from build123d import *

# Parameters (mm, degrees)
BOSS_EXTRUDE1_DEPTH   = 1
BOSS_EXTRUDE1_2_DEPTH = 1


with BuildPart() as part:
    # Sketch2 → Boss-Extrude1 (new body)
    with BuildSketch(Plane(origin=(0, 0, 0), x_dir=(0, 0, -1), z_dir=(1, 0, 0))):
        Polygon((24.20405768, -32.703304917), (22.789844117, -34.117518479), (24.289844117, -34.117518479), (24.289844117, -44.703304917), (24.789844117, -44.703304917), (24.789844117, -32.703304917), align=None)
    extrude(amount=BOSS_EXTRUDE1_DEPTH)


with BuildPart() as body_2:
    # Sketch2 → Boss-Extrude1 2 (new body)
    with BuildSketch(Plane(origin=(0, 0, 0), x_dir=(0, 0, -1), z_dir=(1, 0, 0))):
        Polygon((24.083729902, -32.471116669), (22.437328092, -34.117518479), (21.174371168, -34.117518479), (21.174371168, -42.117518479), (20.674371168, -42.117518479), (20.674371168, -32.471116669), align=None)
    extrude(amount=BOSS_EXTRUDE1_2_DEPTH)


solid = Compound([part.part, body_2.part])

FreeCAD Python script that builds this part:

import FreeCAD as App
import Part
import Sketcher

V = App.Vector
Q = App.Units.Quantity

doc = App.newDocument("Part")
body = doc.addObject("PartDesign::Body", "Body")

# Sketch on YZ plane
sketch1 = doc.addObject("Sketcher::SketchObject", "Sketch")
body.addObject(sketch1)
sketch1.AttachmentSupport = (doc.YZ_Plane, [""])
sketch1.MapMode = "FlatFace"
sketch1.addGeometry([
    Part.LineSegment(V(-32.7, -24.2, 0), V(-34.1, -22.8, 0)),  # 0
    Part.LineSegment(V(-34.1, -22.8, 0), V(-34.1, -24.3, 0)),  # 1
    Part.LineSegment(V(-34.1, -24.3, 0), V(-44.7, -24.3, 0)),  # 2
    Part.LineSegment(V(-44.7, -24.3, 0), V(-44.7, -24.8, 0)),  # 3
    Part.LineSegment(V(-44.7, -24.8, 0), V(-32.7, -24.8, 0)),  # 4
    Part.LineSegment(V(-32.7, -24.8, 0), V(-32.7, -24.2, 0)),  # 5
], False)
sketch1.addConstraint([
    Sketcher.Constraint("Coincident", 0, 2, 1, 1),
    Sketcher.Constraint("Coincident", 1, 2, 2, 1),
    Sketcher.Constraint("Coincident", 2, 2, 3, 1),
    Sketcher.Constraint("Coincident", 3, 2, 4, 1),
    Sketcher.Constraint("Coincident", 4, 2, 5, 1),
    Sketcher.Constraint("Coincident", 5, 2, 0, 1),
    Sketcher.Constraint("Vertical", 1),
    Sketcher.Constraint("Horizontal", 2),
    Sketcher.Constraint("Vertical", 3),
    Sketcher.Constraint("Horizontal", 4),
    Sketcher.Constraint("Vertical", 5),
    Sketcher.Constraint("DistanceX", 4, 1, 4, 2, 12.0),
    Sketcher.Constraint("Angle", 0, Q("135 deg")),
    Sketcher.Constraint("Distance", 0, 2.0),
    Sketcher.Constraint("DistanceY", 1, 2, 1, 1, 1.5),
    Sketcher.Constraint("DistanceY", 3, 2, 3, 1, 0.5),
    Sketcher.Constraint("DistanceX", 0, 2, -1, 1, 34.117518),
    Sketcher.Constraint("DistanceY", 0, 2, -1, 1, 22.789844),
])
pad1 = doc.addObject("PartDesign::Pad", "Pad")
body.addObject(pad1)
pad1.Profile = sketch1
pad1.Length = 1
body2 = doc.addObject("PartDesign::Body", "Body001")

# Sketch on YZ plane
sketch2 = doc.addObject("Sketcher::SketchObject", "Sketch001")
body2.addObject(sketch2)
sketch2.AttachmentSupport = (doc.getObject("YZ_Plane001"), [""])
sketch2.MapMode = "FlatFace"
sketch2.addGeometry([
    Part.LineSegment(V(-34.1, -22.4, 0), V(-32.5, -24.1, 0)),  # 0
    Part.LineSegment(V(-32.5, -24.1, 0), V(-32.5, -20.7, 0)),  # 1
    Part.LineSegment(V(-32.5, -20.7, 0), V(-42.1, -20.7, 0)),  # 2
    Part.LineSegment(V(-42.1, -20.7, 0), V(-42.1, -21.2, 0)),  # 3
    Part.LineSegment(V(-42.1, -21.2, 0), V(-34.1, -21.2, 0)),  # 4
    Part.LineSegment(V(-34.1, -21.2, 0), V(-34.1, -22.4, 0)),  # 5
], False)
sketch2.addConstraint([
    Sketcher.Constraint("Coincident", 0, 2, 1, 1),
    Sketcher.Constraint("Coincident", 1, 2, 2, 1),
    Sketcher.Constraint("Coincident", 2, 2, 3, 1),
    Sketcher.Constraint("Coincident", 3, 2, 4, 1),
    Sketcher.Constraint("Coincident", 4, 2, 5, 1),
    Sketcher.Constraint("Coincident", 5, 2, 0, 1),
    Sketcher.Constraint("Vertical", 1),
    Sketcher.Constraint("Horizontal", 2),
    Sketcher.Constraint("Vertical", 3),
    Sketcher.Constraint("Horizontal", 4),
    Sketcher.Constraint("Vertical", 5),
    Sketcher.Constraint("DistanceX", 4, 1, 4, 2, 8.0),
    Sketcher.Constraint("Angle", 0, Q("-45 deg")),
    Sketcher.Constraint("DistanceY", 3, 2, 3, 1, 0.5),
    Sketcher.Constraint("DistanceX", 2, 2, 2, 1, 9.646402),
    Sketcher.Constraint("DistanceY", 1, 1, 1, 2, 3.409359),
    Sketcher.Constraint("DistanceY", 0, 2, -1, 1, 24.08373),
    Sketcher.Constraint("DistanceX", 2, 2, -1, 1, 42.117518),
])
pad2 = doc.addObject("PartDesign::Pad", "Pad001")
body2.addObject(pad2)
pad2.Profile = sketch2
pad2.Length = 1

doc.recompute()
